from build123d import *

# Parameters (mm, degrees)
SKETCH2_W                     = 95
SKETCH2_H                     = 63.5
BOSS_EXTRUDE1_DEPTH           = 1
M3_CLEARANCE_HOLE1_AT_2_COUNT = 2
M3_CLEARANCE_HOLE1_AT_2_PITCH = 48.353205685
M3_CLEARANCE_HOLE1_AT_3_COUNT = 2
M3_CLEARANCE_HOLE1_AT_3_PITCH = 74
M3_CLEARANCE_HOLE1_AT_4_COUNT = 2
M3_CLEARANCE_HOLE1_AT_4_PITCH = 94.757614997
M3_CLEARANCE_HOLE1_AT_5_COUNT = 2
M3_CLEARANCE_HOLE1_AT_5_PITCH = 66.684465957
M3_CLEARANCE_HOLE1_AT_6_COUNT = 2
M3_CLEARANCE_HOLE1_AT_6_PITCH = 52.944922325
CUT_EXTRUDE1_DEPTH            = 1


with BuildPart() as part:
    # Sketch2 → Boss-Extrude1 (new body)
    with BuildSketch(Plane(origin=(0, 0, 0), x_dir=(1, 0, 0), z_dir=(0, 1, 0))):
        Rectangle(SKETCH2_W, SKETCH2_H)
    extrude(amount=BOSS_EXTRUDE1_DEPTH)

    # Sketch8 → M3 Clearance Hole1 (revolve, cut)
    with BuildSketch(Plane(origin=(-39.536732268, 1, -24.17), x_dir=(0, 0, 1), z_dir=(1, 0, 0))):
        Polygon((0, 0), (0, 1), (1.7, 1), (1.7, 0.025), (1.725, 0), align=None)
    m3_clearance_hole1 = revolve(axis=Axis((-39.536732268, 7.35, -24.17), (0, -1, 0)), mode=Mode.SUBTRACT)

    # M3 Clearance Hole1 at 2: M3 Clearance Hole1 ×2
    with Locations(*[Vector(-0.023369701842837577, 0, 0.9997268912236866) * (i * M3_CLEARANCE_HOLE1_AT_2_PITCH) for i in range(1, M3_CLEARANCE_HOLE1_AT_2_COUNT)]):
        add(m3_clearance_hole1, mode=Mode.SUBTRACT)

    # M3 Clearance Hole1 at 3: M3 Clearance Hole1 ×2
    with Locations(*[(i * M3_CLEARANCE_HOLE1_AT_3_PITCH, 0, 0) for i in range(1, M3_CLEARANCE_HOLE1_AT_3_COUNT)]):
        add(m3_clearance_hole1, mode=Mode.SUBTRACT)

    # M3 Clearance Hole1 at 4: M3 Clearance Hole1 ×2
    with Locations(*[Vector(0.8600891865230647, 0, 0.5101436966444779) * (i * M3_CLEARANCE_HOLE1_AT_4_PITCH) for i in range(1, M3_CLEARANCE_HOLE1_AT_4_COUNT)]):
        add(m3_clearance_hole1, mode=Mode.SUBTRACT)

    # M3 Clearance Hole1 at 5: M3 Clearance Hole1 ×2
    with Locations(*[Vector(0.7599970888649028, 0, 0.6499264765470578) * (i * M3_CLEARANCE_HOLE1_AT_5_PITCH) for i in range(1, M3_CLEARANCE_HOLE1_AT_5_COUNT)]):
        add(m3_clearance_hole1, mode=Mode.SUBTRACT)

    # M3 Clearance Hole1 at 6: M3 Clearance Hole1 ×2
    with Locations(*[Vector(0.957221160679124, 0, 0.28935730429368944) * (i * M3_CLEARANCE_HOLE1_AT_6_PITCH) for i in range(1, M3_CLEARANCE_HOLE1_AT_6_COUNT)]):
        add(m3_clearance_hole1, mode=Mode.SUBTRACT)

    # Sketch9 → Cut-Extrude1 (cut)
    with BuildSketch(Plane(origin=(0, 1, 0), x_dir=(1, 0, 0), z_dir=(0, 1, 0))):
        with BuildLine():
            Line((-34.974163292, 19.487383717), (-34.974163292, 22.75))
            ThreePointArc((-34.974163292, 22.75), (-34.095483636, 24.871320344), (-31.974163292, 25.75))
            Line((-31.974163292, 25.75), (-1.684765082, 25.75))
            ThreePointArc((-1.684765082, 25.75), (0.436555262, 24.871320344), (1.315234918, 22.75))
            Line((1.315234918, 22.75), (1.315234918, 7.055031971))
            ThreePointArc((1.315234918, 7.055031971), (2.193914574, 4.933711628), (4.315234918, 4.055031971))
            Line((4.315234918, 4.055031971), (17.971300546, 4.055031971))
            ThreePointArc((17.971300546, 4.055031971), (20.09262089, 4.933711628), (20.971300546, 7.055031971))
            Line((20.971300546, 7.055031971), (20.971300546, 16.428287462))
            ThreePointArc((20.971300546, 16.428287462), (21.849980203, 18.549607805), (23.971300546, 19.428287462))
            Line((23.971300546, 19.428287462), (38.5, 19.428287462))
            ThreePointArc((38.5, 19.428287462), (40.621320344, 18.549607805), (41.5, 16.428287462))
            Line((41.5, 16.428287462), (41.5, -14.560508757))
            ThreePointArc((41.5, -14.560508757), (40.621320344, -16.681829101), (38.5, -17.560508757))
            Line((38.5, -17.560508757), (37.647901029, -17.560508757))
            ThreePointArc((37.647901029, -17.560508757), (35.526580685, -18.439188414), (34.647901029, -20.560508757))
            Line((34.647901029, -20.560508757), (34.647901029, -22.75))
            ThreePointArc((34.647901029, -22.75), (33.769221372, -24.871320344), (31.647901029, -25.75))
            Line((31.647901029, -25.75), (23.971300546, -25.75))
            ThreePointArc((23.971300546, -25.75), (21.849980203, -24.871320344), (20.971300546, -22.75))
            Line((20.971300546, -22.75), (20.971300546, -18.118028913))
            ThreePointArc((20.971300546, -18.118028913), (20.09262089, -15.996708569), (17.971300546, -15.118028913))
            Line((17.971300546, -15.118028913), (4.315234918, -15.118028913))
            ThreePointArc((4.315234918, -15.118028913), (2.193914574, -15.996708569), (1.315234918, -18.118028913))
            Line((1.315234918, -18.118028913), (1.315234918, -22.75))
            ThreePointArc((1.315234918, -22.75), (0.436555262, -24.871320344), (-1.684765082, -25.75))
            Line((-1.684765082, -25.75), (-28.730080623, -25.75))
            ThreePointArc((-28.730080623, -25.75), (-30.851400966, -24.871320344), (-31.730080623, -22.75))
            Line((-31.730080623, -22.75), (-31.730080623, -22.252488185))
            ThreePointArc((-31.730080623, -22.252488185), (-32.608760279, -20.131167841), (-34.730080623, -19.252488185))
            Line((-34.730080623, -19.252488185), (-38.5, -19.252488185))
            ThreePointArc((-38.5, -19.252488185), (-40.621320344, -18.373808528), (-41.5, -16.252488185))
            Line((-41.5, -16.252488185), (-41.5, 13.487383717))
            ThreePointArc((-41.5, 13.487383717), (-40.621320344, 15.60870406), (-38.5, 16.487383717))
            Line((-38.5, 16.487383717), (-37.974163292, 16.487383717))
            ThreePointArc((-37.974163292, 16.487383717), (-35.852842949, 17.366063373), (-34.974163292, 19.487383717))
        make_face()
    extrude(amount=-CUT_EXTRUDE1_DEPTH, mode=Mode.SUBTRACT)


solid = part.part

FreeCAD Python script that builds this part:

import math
import FreeCAD as App
import Part
import Sketcher
Q = App.Units.Quantity

doc = App.newDocument("Part")
body = doc.addObject("PartDesign::Body", "Body")

sketch1 = body.newObject("Sketcher::SketchObject", "Sketch")
sketch1.AttachmentSupport = (doc.getObject("XZ_Plane"), [""])
sketch1.MapMode = "FlatFace"
sketch1.addGeometry([
    Part.LineSegment(App.Vector(-47.5, -31.75, 0), App.Vector(-47.5, 31.75, 0)),
    Part.LineSegment(App.Vector(-47.5, 31.75, 0), App.Vector(47.5, 31.75, 0)),
    Part.LineSegment(App.Vector(47.5, 31.75, 0), App.Vector(47.5, -31.75, 0)),
    Part.LineSegment(App.Vector(47.5, -31.75, 0), App.Vector(-47.5, -31.75, 0)),
], False)
sketch1.addConstraint([
    Sketcher.Constraint("Coincident", 0, 2, 1, 1),
    Sketcher.Constraint("Coincident", 1, 2, 2, 1),
    Sketcher.Constraint("Coincident", 2, 2, 3, 1),
    Sketcher.Constraint("Coincident", 3, 2, 0, 1),
    Sketcher.Constraint("Vertical", 0),
    Sketcher.Constraint("Horizontal", 1),
    Sketcher.Constraint("Vertical", 2),
    Sketcher.Constraint("Horizontal", 3),
    Sketcher.Constraint("Symmetric", 0, 2, 2, 2, -1, 1),
    Sketcher.Constraint("DistanceX", 1, 1, 1, 2, Q("95 mm")),
    Sketcher.Constraint("DistanceY", 0, 1, 0, 2, Q("63.5 mm")),
])
pad1 = body.newObject("PartDesign::Pad", "Pad")
pad1.Profile = sketch1
pad1.Length = 1
pad1.Reversed = True

sketch2 = body.newObject("Sketcher::SketchObject", "Sketch001")
sketch2.AttachmentSupport = (doc.getObject("YZ_Plane"), [""])
sketch2.MapMode = "FlatFace"
sketch2.AttachmentOffset = App.Placement(App.Vector(0, 0, -39.536732), App.Rotation())
sketch2.addGeometry([
    Part.LineSegment(App.Vector(0, -24.17, 0), App.Vector(1, -24.17, 0)),
    Part.LineSegment(App.Vector(1, -24.17, 0), App.Vector(1, -22.445, 0)),
    Part.LineSegment(App.Vector(1, -22.445, 0), App.Vector(0.975, -22.47, 0)),
    Part.LineSegment(App.Vector(0.975, -22.47, 0), App.Vector(0, -22.47, 0)),
    Part.LineSegment(App.Vector(0, -22.47, 0), App.Vector(0, -24.17, 0)),
], False)
sketch2.addGeometry(Part.LineSegment(App.Vector(1, -24.17, 0), App.Vector(0, -24.17, 0)), True)
sketch2.addConstraint([
    Sketcher.Constraint("Coincident", 0, 2, 1, 1),
    Sketcher.Constraint("Coincident", 1, 2, 2, 1),
    Sketcher.Constraint("Coincident", 2, 2, 3, 1),
    Sketcher.Constraint("Coincident", 3, 2, 4, 1),
    Sketcher.Constraint("Coincident", 4, 2, 0, 1),
    Sketcher.Constraint("Horizontal", 0),
    Sketcher.Constraint("Vertical", 1),
    Sketcher.Constraint("Horizontal", 3),
    Sketcher.Constraint("Vertical", 4),
    Sketcher.Constraint("Horizontal", 5),
    Sketcher.Constraint("Coincident", 5, 1, 0, 2),
    Sketcher.Constraint("PointOnObject", 3, 2, -2),
    Sketcher.Constraint("PointOnObject", 5, 2, -2),
    Sketcher.Constraint("DistanceX", 0, 1, 0, 2, Q("1 mm")),
    Sketcher.Constraint("Angle", 2, Q("-135 deg")),
    Sketcher.Constraint("DistanceY", 4, 2, 4, 1, Q("1.7 mm")),
    Sketcher.Constraint("DistanceX", 3, 2, 3, 1, Q("0.975 mm")),
    Sketcher.Constraint("DistanceY", 0, 2, -1, 1, Q("24.17 mm")),
])
groove = body.newObject("PartDesign::Groove", "Groove")
groove.Profile = sketch2
groove.ReferenceAxis = (sketch2, ["Axis0"])
groove.Angle = 360
doc.recompute()

datumline = body.newObject("PartDesign::Line", "DatumLine")
datumline.Placement = App.Placement(App.Vector(0, 0, 0), App.Rotation(App.Vector(0, 0, 1), App.Vector(-0.023369702, 0, 0.999726891)))
linearpattern = body.newObject("PartDesign::LinearPattern", "LinearPattern")
linearpattern.Originals = [groove]
linearpattern.Direction = (datumline, [""])
linearpattern.Mode = "offset"
linearpattern.Offset = 48.353206
linearpattern.Occurrences = 2
body.Tip = linearpattern
doc.recompute()

linearpattern2 = body.newObject("PartDesign::LinearPattern", "LinearPattern001")
linearpattern2.Originals = [groove]
linearpattern2.Direction = (doc.getObject("X_Axis"), [""])
linearpattern2.Mode = "offset"
linearpattern2.Offset = 74
linearpattern2.Occurrences = 2
body.Tip = linearpattern2
doc.recompute()

datumline2 = body.newObject("PartDesign::Line", "DatumLine001")
datumline2.Placement = App.Placement(App.Vector(0, 0, 0), App.Rotation(App.Vector(0, 0, 1), App.Vector(0.860089187, 0, 0.510143697)))
linearpattern3 = body.newObject("PartDesign::LinearPattern", "LinearPattern002")
linearpattern3.Originals = [groove]
linearpattern3.Direction = (datumline2, [""])
linearpattern3.Mode = "offset"
linearpattern3.Offset = 94.757615
linearpattern3.Occurrences = 2
body.Tip = linearpattern3
doc.recompute()

datumline3 = body.newObject("PartDesign::Line", "DatumLine002")
datumline3.Placement = App.Placement(App.Vector(0, 0, 0), App.Rotation(App.Vector(0, 0, 1), App.Vector(0.759997089, 0, 0.649926477)))
linearpattern4 = body.newObject("PartDesign::LinearPattern", "LinearPattern003")
linearpattern4.Originals = [groove]
linearpattern4.Direction = (datumline3, [""])
linearpattern4.Mode = "offset"
linearpattern4.Offset = 66.684466
linearpattern4.Occurrences = 2
body.Tip = linearpattern4
doc.recompute()

datumline4 = body.newObject("PartDesign::Line", "DatumLine003")
datumline4.Placement = App.Placement(App.Vector(0, 0, 0), App.Rotation(App.Vector(0, 0, 1), App.Vector(0.957221161, 0, 0.289357304)))
linearpattern5 = body.newObject("PartDesign::LinearPattern", "LinearPattern004")
linearpattern5.Originals = [groove]
linearpattern5.Direction = (datumline4, [""])
linearpattern5.Mode = "offset"
linearpattern5.Offset = 52.944922
linearpattern5.Occurrences = 2
body.Tip = linearpattern5

sketch3 = body.newObject("Sketcher::SketchObject", "Sketch002")
sketch3.AttachmentSupport = (doc.getObject("XZ_Plane"), [""])
sketch3.MapMode = "FlatFace"
sketch3.AttachmentOffset = App.Placement(App.Vector(0, 0, -1), App.Rotation())
sketch3.addGeometry([
    Part.LineSegment(App.Vector(-34.974163, -22.75, 0), App.Vector(-34.974163, -19.487384, 0)),
    Part.ArcOfCircle(Part.Circle(App.Vector(-37.974163, -19.487384, 0), App.Vector(0, 0, 1), 3), math.radians(0), math.radians(90)),
    Part.LineSegment(App.Vector(-37.974163, -16.487384, 0), App.Vector(-38.5, -16.487384, 0)),
    Part.ArcOfCircle(Part.Circle(App.Vector(-38.5, -13.487384, 0), App.Vector(0, 0, 1), 3), math.radians(180), math.radians(270)),
    Part.LineSegment(App.Vector(-41.5, -13.487384, 0), App.Vector(-41.5, 16.252488, 0)),
    Part.ArcOfCircle(Part.Circle(App.Vector(-38.5, 16.252488, 0), App.Vector(0, 0, 1), 3), math.radians(90), math.radians(180)),
    Part.LineSegment(App.Vector(-38.5, 19.252488, 0), App.Vector(-34.730081, 19.252488, 0)),
    Part.ArcOfCircle(Part.Circle(App.Vector(-34.730081, 22.252488, 0), App.Vector(0, 0, 1), 3), math.radians(-90), math.radians(0)),
    Part.LineSegment(App.Vector(-31.730081, 22.252488, 0), App.Vector(-31.730081, 22.75, 0)),
    Part.ArcOfCircle(Part.Circle(App.Vector(-28.730081, 22.75, 0), App.Vector(0, 0, 1), 3), math.radians(90), math.radians(180)),
    Part.LineSegment(App.Vector(-28.730081, 25.75, 0), App.Vector(-1.684765, 25.75, 0)),
    Part.ArcOfCircle(Part.Circle(App.Vector(-1.684765, 22.75, 0), App.Vector(0, 0, 1), 3), math.radians(0), math.radians(90)),
    Part.LineSegment(App.Vector(1.315235, 22.75, 0), App.Vector(1.315235, 18.118029, 0)),
    Part.ArcOfCircle(Part.Circle(App.Vector(4.315235, 18.118029, 0), App.Vector(0, 0, 1), 3), math.radians(180), math.radians(270)),
    Part.LineSegment(App.Vector(4.315235, 15.118029, 0), App.Vector(17.971301, 15.118029, 0)),
    Part.ArcOfCircle(Part.Circle(App.Vector(17.971301, 18.118029, 0), App.Vector(0, 0, 1), 3), math.radians(-90), math.radians(0)),
    Part.LineSegment(App.Vector(20.971301, 18.118029, 0), App.Vector(20.971301, 22.75, 0)),
    Part.ArcOfCircle(Part.Circle(App.Vector(23.971301, 22.75, 0), App.Vector(0, 0, 1), 3), math.radians(90), math.radians(180)),
    Part.LineSegment(App.Vector(23.971301, 25.75, 0), App.Vector(31.647901, 25.75, 0)),
    Part.ArcOfCircle(Part.Circle(App.Vector(31.647901, 22.75, 0), App.Vector(0, 0, 1), 3), math.radians(0), math.radians(90)),
    Part.LineSegment(App.Vector(34.647901, 22.75, 0), App.Vector(34.647901, 20.560509, 0)),
    Part.ArcOfCircle(Part.Circle(App.Vector(37.647901, 20.560509, 0), App.Vector(0, 0, 1), 3), math.radians(180), math.radians(270)),
    Part.LineSegment(App.Vector(37.647901, 17.560509, 0), App.Vector(38.5, 17.560509, 0)),
    Part.ArcOfCircle(Part.Circle(App.Vector(38.5, 14.560509, 0), App.Vector(0, 0, 1), 3), math.radians(0), math.radians(90)),
    Part.LineSegment(App.Vector(41.5, 14.560509, 0), App.Vector(41.5, -16.428287, 0)),
    Part.ArcOfCircle(Part.Circle(App.Vector(38.5, -16.428287, 0), App.Vector(0, 0, 1), 3), math.radians(-90), math.radians(0)),
    Part.LineSegment(App.Vector(38.5, -19.428287, 0), App.Vector(23.971301, -19.428287, 0)),
    Part.ArcOfCircle(Part.Circle(App.Vector(23.971301, -16.428287, 0), App.Vector(0, 0, 1), 3), math.radians(-180), math.radians(-90)),
    Part.LineSegment(App.Vector(20.971301, -16.428287, 0), App.Vector(20.971301, -7.055032, 0)),
    Part.ArcOfCircle(Part.Circle(App.Vector(17.971301, -7.055032, 0), App.Vector(0, 0, 1), 3), math.radians(0), math.radians(90)),
    Part.LineSegment(App.Vector(17.971301, -4.055032, 0), App.Vector(4.315235, -4.055032, 0)),
    Part.ArcOfCircle(Part.Circle(App.Vector(4.315235, -7.055032, 0), App.Vector(0, 0, 1), 3), math.radians(90), math.radians(180)),
    Part.LineSegment(App.Vector(1.315235, -7.055032, 0), App.Vector(1.315235, -22.75, 0)),
    Part.ArcOfCircle(Part.Circle(App.Vector(-1.684765, -22.75, 0), App.Vector(0, 0, 1), 3), math.radians(-90), math.radians(0)),
    Part.LineSegment(App.Vector(-1.684765, -25.75, 0), App.Vector(-31.974163, -25.75, 0)),
    Part.ArcOfCircle(Part.Circle(App.Vector(-31.974163, -22.75, 0), App.Vector(0, 0, 1), 3), math.radians(180), math.radians(270)),
], False)
sketch3.addConstraint([
    Sketcher.Constraint("Tangent", 0, 2, 1, 1),
    Sketcher.Constraint("Tangent", 1, 2, 2, 1),
    Sketcher.Constraint("Tangent", 2, 2, 3, 2),
    Sketcher.Constraint("Tangent", 3, 1, 4, 1),
    Sketcher.Constraint("Tangent", 4, 2, 5, 2),
    Sketcher.Constraint("Tangent", 5, 1, 6, 1),
    Sketcher.Constraint("Tangent", 6, 2, 7, 1),
    Sketcher.Constraint("Tangent", 7, 2, 8, 1),
    Sketcher.Constraint("Tangent", 8, 2, 9, 2),
    Sketcher.Constraint("Tangent", 9, 1, 10, 1),
    Sketcher.Constraint("Tangent", 10, 2, 11, 2),
    Sketcher.Constraint("Tangent", 11, 1, 12, 1),
    Sketcher.Constraint("Tangent", 12, 2, 13, 1),
    Sketcher.Constraint("Tangent", 13, 2, 14, 1),
    Sketcher.Constraint("Tangent", 14, 2, 15, 1),
    Sketcher.Constraint("Tangent", 15, 2, 16, 1),
    Sketcher.Constraint("Tangent", 16, 2, 17, 2),
    Sketcher.Constraint("Tangent", 17, 1, 18, 1),
    Sketcher.Constraint("Tangent", 18, 2, 19, 2),
    Sketcher.Constraint("Tangent", 19, 1, 20, 1),
    Sketcher.Constraint("Tangent", 20, 2, 21, 1),
    Sketcher.Constraint("Tangent", 21, 2, 22, 1),
    Sketcher.Constraint("Tangent", 22, 2, 23, 2),
    Sketcher.Constraint("Tangent", 23, 1, 24, 1),
    Sketcher.Constraint("Tangent", 24, 2, 25, 2),
    Sketcher.Constraint("Tangent", 25, 1, 26, 1),
    Sketcher.Constraint("Tangent", 26, 2, 27, 2),
    Sketcher.Constraint("Tangent", 27, 1, 28, 1),
    Sketcher.Constraint("Tangent", 28, 2, 29, 1),
    Sketcher.Constraint("Tangent", 29, 2, 30, 1),
    Sketcher.Constraint("Tangent", 30, 2, 31, 1),
    Sketcher.Constraint("Tangent", 31, 2, 32, 1),
    Sketcher.Constraint("Tangent", 32, 2, 33, 2),
    Sketcher.Constraint("Tangent", 33, 1, 34, 1),
    Sketcher.Constraint("Tangent", 34, 2, 35, 2),
    Sketcher.Constraint("Tangent", 35, 1, 0, 1),
    Sketcher.Constraint("Vertical", 0),
    Sketcher.Constraint("Horizontal", 2),
    Sketcher.Constraint("Vertical", 4),
    Sketcher.Constraint("Horizontal", 6),
    Sketcher.Constraint("Vertical", 8),
    Sketcher.Constraint("Horizontal", 10),
    Sketcher.Constraint("Vertical", 12),
    Sketcher.Constraint("Horizontal", 14),
    Sketcher.Constraint("Vertical", 16),
    Sketcher.Constraint("Horizontal", 18),
    Sketcher.Constraint("Vertical", 20),
    Sketcher.Constraint("Horizontal", 22),
    Sketcher.Constraint("Vertical", 24),
    Sketcher.Constraint("Horizontal", 26),
    Sketcher.Constraint("Vertical", 28),
    Sketcher.Constraint("Horizontal", 30),
    Sketcher.Constraint("Vertical", 32),
    Sketcher.Constraint("Horizontal", 34),
    Sketcher.Constraint("Equal", 1, 3),
    Sketcher.Constraint("Equal", 3, 5),
    Sketcher.Constraint("Equal", 5, 7),
    Sketcher.Constraint("Equal", 7, 9),
    Sketcher.Constraint("Equal", 9, 11),
    Sketcher.Constraint("Equal", 11, 13),
    Sketcher.Constraint("Equal", 13, 15),
    Sketcher.Constraint("Equal", 15, 17),
    Sketcher.Constraint("Equal", 17, 19),
    Sketcher.Constraint("Equal", 19, 21),
    Sketcher.Constraint("Equal", 21, 23),
    Sketcher.Constraint("Equal", 23, 25),
    Sketcher.Constraint("Equal", 25, 27),
    Sketcher.Constraint("Equal", 27, 29),
    Sketcher.Constraint("Equal", 29, 31),
    Sketcher.Constraint("Equal", 31, 33),
    Sketcher.Constraint("Equal", 33, 35),
    Sketcher.Constraint("Symmetric", 11, 3, 33, 3, -1),
    Sketcher.Constraint("Horizontal", 11, 3, 17, 3),
    Sketcher.Constraint("Vertical", 17, 3, 27, 3),
    Sketcher.Constraint("Radius", 1, Q("3 mm")),
    Sketcher.Constraint("DistanceX", 3, 3, -1, 1, Q("38.5 mm")),
    Sketcher.Constraint("DistanceX", -1, 1, 23, 3, Q("38.5 mm")),
    Sketcher.Constraint("DistanceY", -1, 1, 9, 3, Q("22.75 mm")),
    Sketcher.Constraint("DistanceX", 18, 1, 18, 2, Q("7.6766 mm")),
    Sketcher.Constraint("DistanceX", 22, 1, 22, 2, Q("0.852099 mm")),
    Sketcher.Constraint("DistanceX", 34, 2, 34, 1, Q("30.289398 mm")),
    Sketcher.Constraint("DistanceX", 6, 1, 6, 2, Q("3.769919 mm")),
    Sketcher.Constraint("DistanceY", 4, 1, 4, 2, Q("29.739872 mm")),
    Sketcher.Constraint("DistanceY", 8, 1, 8, 2, Q("0.497512 mm")),
    Sketcher.Constraint("DistanceY", 12, 2, 12, 1, Q("4.631971 mm")),
    Sketcher.Constraint("DistanceY", 20, 2, 20, 1, Q("2.189491 mm")),
    Sketcher.Constraint("DistanceY", 32, 2, 32, 1, Q("15.694968 mm")),
    Sketcher.Constraint("DistanceX", 2, 2, 2, 1, Q("0.525837 mm")),
    Sketcher.Constraint("DistanceY", 24, 2, 24, 1, Q("30.988796 mm")),
])
pocket1 = body.newObject("PartDesign::Pocket", "Pocket")
pocket1.Profile = sketch3
pocket1.Length = 1
pocket1.Reversed = True

doc.recompute()
